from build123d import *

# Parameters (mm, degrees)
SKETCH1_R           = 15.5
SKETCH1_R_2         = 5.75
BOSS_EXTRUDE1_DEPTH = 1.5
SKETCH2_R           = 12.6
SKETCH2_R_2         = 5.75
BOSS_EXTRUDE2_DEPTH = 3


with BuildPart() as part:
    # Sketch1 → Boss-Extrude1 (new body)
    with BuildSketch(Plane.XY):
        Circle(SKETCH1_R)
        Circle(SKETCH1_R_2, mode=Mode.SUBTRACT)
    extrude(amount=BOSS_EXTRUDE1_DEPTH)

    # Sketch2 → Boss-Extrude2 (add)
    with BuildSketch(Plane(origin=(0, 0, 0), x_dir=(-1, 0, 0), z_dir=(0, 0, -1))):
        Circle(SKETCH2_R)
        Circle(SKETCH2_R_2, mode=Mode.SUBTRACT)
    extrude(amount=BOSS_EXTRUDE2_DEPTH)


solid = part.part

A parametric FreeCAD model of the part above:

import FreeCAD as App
import Part
import Sketcher
from FreeCAD import Vector
Q = App.Units.Quantity

doc = App.newDocument("Part")
body = doc.addObject("PartDesign::Body", "Body")

sketch1 = body.newObject("Sketcher::SketchObject", "Sketch")
sketch1.AttachmentSupport = (doc.getObject("XY_Plane"), [""])
sketch1.MapMode = "FlatFace"
sketch1.addGeometry(Part.Circle(Vector(0, 0, 0), Vector(0, 0, 1), 16), False)
sketch1.addGeometry(Part.Circle(Vector(0, 0, 0), Vector(0, 0, 1), 6), False)
sketch1.addConstraint(Sketcher.Constraint("Coincident", 0, 3, -1, 1))
sketch1.addConstraint(Sketcher.Constraint("Coincident", 1, 3, -1, 1))
sketch1.addConstraint(Sketcher.Constraint("Diameter", 0, Q("31 mm")))
sketch1.addConstraint(Sketcher.Constraint("Diameter", 1, Q("11.5 mm")))
pad1 = body.newObject("PartDesign::Pad", "Pad")
pad1.Profile = sketch1
pad1.Length = 1.5

sketch2 = body.newObject("Sketcher::SketchObject", "Sketch001")
sketch2.AttachmentSupport = (doc.getObject("XY_Plane"), [""])
sketch2.MapMode = "FlatFace"
sketch2.addGeometry(Part.Circle(Vector(0, 0, 0), Vector(0, 0, 1), 13), False)
sketch2.addGeometry(Part.Circle(Vector(0, 0, 0), Vector(0, 0, 1), 6), False)
sketch2.addConstraint(Sketcher.Constraint("Coincident", 0, 3, -1, 1))
sketch2.addConstraint(Sketcher.Constraint("Coincident", 1, 3, -1, 1))
sketch2.addConstraint(Sketcher.Constraint("Diameter", 0, Q("25.2 mm")))
sketch2.addConstraint(Sketcher.Constraint("Diameter", 1, Q("11.5 mm")))
pad2 = body.newObject("PartDesign::Pad", "Pad001")
pad2.Profile = sketch2
pad2.Length = 3
pad2.Reversed = True

doc.recompute()
